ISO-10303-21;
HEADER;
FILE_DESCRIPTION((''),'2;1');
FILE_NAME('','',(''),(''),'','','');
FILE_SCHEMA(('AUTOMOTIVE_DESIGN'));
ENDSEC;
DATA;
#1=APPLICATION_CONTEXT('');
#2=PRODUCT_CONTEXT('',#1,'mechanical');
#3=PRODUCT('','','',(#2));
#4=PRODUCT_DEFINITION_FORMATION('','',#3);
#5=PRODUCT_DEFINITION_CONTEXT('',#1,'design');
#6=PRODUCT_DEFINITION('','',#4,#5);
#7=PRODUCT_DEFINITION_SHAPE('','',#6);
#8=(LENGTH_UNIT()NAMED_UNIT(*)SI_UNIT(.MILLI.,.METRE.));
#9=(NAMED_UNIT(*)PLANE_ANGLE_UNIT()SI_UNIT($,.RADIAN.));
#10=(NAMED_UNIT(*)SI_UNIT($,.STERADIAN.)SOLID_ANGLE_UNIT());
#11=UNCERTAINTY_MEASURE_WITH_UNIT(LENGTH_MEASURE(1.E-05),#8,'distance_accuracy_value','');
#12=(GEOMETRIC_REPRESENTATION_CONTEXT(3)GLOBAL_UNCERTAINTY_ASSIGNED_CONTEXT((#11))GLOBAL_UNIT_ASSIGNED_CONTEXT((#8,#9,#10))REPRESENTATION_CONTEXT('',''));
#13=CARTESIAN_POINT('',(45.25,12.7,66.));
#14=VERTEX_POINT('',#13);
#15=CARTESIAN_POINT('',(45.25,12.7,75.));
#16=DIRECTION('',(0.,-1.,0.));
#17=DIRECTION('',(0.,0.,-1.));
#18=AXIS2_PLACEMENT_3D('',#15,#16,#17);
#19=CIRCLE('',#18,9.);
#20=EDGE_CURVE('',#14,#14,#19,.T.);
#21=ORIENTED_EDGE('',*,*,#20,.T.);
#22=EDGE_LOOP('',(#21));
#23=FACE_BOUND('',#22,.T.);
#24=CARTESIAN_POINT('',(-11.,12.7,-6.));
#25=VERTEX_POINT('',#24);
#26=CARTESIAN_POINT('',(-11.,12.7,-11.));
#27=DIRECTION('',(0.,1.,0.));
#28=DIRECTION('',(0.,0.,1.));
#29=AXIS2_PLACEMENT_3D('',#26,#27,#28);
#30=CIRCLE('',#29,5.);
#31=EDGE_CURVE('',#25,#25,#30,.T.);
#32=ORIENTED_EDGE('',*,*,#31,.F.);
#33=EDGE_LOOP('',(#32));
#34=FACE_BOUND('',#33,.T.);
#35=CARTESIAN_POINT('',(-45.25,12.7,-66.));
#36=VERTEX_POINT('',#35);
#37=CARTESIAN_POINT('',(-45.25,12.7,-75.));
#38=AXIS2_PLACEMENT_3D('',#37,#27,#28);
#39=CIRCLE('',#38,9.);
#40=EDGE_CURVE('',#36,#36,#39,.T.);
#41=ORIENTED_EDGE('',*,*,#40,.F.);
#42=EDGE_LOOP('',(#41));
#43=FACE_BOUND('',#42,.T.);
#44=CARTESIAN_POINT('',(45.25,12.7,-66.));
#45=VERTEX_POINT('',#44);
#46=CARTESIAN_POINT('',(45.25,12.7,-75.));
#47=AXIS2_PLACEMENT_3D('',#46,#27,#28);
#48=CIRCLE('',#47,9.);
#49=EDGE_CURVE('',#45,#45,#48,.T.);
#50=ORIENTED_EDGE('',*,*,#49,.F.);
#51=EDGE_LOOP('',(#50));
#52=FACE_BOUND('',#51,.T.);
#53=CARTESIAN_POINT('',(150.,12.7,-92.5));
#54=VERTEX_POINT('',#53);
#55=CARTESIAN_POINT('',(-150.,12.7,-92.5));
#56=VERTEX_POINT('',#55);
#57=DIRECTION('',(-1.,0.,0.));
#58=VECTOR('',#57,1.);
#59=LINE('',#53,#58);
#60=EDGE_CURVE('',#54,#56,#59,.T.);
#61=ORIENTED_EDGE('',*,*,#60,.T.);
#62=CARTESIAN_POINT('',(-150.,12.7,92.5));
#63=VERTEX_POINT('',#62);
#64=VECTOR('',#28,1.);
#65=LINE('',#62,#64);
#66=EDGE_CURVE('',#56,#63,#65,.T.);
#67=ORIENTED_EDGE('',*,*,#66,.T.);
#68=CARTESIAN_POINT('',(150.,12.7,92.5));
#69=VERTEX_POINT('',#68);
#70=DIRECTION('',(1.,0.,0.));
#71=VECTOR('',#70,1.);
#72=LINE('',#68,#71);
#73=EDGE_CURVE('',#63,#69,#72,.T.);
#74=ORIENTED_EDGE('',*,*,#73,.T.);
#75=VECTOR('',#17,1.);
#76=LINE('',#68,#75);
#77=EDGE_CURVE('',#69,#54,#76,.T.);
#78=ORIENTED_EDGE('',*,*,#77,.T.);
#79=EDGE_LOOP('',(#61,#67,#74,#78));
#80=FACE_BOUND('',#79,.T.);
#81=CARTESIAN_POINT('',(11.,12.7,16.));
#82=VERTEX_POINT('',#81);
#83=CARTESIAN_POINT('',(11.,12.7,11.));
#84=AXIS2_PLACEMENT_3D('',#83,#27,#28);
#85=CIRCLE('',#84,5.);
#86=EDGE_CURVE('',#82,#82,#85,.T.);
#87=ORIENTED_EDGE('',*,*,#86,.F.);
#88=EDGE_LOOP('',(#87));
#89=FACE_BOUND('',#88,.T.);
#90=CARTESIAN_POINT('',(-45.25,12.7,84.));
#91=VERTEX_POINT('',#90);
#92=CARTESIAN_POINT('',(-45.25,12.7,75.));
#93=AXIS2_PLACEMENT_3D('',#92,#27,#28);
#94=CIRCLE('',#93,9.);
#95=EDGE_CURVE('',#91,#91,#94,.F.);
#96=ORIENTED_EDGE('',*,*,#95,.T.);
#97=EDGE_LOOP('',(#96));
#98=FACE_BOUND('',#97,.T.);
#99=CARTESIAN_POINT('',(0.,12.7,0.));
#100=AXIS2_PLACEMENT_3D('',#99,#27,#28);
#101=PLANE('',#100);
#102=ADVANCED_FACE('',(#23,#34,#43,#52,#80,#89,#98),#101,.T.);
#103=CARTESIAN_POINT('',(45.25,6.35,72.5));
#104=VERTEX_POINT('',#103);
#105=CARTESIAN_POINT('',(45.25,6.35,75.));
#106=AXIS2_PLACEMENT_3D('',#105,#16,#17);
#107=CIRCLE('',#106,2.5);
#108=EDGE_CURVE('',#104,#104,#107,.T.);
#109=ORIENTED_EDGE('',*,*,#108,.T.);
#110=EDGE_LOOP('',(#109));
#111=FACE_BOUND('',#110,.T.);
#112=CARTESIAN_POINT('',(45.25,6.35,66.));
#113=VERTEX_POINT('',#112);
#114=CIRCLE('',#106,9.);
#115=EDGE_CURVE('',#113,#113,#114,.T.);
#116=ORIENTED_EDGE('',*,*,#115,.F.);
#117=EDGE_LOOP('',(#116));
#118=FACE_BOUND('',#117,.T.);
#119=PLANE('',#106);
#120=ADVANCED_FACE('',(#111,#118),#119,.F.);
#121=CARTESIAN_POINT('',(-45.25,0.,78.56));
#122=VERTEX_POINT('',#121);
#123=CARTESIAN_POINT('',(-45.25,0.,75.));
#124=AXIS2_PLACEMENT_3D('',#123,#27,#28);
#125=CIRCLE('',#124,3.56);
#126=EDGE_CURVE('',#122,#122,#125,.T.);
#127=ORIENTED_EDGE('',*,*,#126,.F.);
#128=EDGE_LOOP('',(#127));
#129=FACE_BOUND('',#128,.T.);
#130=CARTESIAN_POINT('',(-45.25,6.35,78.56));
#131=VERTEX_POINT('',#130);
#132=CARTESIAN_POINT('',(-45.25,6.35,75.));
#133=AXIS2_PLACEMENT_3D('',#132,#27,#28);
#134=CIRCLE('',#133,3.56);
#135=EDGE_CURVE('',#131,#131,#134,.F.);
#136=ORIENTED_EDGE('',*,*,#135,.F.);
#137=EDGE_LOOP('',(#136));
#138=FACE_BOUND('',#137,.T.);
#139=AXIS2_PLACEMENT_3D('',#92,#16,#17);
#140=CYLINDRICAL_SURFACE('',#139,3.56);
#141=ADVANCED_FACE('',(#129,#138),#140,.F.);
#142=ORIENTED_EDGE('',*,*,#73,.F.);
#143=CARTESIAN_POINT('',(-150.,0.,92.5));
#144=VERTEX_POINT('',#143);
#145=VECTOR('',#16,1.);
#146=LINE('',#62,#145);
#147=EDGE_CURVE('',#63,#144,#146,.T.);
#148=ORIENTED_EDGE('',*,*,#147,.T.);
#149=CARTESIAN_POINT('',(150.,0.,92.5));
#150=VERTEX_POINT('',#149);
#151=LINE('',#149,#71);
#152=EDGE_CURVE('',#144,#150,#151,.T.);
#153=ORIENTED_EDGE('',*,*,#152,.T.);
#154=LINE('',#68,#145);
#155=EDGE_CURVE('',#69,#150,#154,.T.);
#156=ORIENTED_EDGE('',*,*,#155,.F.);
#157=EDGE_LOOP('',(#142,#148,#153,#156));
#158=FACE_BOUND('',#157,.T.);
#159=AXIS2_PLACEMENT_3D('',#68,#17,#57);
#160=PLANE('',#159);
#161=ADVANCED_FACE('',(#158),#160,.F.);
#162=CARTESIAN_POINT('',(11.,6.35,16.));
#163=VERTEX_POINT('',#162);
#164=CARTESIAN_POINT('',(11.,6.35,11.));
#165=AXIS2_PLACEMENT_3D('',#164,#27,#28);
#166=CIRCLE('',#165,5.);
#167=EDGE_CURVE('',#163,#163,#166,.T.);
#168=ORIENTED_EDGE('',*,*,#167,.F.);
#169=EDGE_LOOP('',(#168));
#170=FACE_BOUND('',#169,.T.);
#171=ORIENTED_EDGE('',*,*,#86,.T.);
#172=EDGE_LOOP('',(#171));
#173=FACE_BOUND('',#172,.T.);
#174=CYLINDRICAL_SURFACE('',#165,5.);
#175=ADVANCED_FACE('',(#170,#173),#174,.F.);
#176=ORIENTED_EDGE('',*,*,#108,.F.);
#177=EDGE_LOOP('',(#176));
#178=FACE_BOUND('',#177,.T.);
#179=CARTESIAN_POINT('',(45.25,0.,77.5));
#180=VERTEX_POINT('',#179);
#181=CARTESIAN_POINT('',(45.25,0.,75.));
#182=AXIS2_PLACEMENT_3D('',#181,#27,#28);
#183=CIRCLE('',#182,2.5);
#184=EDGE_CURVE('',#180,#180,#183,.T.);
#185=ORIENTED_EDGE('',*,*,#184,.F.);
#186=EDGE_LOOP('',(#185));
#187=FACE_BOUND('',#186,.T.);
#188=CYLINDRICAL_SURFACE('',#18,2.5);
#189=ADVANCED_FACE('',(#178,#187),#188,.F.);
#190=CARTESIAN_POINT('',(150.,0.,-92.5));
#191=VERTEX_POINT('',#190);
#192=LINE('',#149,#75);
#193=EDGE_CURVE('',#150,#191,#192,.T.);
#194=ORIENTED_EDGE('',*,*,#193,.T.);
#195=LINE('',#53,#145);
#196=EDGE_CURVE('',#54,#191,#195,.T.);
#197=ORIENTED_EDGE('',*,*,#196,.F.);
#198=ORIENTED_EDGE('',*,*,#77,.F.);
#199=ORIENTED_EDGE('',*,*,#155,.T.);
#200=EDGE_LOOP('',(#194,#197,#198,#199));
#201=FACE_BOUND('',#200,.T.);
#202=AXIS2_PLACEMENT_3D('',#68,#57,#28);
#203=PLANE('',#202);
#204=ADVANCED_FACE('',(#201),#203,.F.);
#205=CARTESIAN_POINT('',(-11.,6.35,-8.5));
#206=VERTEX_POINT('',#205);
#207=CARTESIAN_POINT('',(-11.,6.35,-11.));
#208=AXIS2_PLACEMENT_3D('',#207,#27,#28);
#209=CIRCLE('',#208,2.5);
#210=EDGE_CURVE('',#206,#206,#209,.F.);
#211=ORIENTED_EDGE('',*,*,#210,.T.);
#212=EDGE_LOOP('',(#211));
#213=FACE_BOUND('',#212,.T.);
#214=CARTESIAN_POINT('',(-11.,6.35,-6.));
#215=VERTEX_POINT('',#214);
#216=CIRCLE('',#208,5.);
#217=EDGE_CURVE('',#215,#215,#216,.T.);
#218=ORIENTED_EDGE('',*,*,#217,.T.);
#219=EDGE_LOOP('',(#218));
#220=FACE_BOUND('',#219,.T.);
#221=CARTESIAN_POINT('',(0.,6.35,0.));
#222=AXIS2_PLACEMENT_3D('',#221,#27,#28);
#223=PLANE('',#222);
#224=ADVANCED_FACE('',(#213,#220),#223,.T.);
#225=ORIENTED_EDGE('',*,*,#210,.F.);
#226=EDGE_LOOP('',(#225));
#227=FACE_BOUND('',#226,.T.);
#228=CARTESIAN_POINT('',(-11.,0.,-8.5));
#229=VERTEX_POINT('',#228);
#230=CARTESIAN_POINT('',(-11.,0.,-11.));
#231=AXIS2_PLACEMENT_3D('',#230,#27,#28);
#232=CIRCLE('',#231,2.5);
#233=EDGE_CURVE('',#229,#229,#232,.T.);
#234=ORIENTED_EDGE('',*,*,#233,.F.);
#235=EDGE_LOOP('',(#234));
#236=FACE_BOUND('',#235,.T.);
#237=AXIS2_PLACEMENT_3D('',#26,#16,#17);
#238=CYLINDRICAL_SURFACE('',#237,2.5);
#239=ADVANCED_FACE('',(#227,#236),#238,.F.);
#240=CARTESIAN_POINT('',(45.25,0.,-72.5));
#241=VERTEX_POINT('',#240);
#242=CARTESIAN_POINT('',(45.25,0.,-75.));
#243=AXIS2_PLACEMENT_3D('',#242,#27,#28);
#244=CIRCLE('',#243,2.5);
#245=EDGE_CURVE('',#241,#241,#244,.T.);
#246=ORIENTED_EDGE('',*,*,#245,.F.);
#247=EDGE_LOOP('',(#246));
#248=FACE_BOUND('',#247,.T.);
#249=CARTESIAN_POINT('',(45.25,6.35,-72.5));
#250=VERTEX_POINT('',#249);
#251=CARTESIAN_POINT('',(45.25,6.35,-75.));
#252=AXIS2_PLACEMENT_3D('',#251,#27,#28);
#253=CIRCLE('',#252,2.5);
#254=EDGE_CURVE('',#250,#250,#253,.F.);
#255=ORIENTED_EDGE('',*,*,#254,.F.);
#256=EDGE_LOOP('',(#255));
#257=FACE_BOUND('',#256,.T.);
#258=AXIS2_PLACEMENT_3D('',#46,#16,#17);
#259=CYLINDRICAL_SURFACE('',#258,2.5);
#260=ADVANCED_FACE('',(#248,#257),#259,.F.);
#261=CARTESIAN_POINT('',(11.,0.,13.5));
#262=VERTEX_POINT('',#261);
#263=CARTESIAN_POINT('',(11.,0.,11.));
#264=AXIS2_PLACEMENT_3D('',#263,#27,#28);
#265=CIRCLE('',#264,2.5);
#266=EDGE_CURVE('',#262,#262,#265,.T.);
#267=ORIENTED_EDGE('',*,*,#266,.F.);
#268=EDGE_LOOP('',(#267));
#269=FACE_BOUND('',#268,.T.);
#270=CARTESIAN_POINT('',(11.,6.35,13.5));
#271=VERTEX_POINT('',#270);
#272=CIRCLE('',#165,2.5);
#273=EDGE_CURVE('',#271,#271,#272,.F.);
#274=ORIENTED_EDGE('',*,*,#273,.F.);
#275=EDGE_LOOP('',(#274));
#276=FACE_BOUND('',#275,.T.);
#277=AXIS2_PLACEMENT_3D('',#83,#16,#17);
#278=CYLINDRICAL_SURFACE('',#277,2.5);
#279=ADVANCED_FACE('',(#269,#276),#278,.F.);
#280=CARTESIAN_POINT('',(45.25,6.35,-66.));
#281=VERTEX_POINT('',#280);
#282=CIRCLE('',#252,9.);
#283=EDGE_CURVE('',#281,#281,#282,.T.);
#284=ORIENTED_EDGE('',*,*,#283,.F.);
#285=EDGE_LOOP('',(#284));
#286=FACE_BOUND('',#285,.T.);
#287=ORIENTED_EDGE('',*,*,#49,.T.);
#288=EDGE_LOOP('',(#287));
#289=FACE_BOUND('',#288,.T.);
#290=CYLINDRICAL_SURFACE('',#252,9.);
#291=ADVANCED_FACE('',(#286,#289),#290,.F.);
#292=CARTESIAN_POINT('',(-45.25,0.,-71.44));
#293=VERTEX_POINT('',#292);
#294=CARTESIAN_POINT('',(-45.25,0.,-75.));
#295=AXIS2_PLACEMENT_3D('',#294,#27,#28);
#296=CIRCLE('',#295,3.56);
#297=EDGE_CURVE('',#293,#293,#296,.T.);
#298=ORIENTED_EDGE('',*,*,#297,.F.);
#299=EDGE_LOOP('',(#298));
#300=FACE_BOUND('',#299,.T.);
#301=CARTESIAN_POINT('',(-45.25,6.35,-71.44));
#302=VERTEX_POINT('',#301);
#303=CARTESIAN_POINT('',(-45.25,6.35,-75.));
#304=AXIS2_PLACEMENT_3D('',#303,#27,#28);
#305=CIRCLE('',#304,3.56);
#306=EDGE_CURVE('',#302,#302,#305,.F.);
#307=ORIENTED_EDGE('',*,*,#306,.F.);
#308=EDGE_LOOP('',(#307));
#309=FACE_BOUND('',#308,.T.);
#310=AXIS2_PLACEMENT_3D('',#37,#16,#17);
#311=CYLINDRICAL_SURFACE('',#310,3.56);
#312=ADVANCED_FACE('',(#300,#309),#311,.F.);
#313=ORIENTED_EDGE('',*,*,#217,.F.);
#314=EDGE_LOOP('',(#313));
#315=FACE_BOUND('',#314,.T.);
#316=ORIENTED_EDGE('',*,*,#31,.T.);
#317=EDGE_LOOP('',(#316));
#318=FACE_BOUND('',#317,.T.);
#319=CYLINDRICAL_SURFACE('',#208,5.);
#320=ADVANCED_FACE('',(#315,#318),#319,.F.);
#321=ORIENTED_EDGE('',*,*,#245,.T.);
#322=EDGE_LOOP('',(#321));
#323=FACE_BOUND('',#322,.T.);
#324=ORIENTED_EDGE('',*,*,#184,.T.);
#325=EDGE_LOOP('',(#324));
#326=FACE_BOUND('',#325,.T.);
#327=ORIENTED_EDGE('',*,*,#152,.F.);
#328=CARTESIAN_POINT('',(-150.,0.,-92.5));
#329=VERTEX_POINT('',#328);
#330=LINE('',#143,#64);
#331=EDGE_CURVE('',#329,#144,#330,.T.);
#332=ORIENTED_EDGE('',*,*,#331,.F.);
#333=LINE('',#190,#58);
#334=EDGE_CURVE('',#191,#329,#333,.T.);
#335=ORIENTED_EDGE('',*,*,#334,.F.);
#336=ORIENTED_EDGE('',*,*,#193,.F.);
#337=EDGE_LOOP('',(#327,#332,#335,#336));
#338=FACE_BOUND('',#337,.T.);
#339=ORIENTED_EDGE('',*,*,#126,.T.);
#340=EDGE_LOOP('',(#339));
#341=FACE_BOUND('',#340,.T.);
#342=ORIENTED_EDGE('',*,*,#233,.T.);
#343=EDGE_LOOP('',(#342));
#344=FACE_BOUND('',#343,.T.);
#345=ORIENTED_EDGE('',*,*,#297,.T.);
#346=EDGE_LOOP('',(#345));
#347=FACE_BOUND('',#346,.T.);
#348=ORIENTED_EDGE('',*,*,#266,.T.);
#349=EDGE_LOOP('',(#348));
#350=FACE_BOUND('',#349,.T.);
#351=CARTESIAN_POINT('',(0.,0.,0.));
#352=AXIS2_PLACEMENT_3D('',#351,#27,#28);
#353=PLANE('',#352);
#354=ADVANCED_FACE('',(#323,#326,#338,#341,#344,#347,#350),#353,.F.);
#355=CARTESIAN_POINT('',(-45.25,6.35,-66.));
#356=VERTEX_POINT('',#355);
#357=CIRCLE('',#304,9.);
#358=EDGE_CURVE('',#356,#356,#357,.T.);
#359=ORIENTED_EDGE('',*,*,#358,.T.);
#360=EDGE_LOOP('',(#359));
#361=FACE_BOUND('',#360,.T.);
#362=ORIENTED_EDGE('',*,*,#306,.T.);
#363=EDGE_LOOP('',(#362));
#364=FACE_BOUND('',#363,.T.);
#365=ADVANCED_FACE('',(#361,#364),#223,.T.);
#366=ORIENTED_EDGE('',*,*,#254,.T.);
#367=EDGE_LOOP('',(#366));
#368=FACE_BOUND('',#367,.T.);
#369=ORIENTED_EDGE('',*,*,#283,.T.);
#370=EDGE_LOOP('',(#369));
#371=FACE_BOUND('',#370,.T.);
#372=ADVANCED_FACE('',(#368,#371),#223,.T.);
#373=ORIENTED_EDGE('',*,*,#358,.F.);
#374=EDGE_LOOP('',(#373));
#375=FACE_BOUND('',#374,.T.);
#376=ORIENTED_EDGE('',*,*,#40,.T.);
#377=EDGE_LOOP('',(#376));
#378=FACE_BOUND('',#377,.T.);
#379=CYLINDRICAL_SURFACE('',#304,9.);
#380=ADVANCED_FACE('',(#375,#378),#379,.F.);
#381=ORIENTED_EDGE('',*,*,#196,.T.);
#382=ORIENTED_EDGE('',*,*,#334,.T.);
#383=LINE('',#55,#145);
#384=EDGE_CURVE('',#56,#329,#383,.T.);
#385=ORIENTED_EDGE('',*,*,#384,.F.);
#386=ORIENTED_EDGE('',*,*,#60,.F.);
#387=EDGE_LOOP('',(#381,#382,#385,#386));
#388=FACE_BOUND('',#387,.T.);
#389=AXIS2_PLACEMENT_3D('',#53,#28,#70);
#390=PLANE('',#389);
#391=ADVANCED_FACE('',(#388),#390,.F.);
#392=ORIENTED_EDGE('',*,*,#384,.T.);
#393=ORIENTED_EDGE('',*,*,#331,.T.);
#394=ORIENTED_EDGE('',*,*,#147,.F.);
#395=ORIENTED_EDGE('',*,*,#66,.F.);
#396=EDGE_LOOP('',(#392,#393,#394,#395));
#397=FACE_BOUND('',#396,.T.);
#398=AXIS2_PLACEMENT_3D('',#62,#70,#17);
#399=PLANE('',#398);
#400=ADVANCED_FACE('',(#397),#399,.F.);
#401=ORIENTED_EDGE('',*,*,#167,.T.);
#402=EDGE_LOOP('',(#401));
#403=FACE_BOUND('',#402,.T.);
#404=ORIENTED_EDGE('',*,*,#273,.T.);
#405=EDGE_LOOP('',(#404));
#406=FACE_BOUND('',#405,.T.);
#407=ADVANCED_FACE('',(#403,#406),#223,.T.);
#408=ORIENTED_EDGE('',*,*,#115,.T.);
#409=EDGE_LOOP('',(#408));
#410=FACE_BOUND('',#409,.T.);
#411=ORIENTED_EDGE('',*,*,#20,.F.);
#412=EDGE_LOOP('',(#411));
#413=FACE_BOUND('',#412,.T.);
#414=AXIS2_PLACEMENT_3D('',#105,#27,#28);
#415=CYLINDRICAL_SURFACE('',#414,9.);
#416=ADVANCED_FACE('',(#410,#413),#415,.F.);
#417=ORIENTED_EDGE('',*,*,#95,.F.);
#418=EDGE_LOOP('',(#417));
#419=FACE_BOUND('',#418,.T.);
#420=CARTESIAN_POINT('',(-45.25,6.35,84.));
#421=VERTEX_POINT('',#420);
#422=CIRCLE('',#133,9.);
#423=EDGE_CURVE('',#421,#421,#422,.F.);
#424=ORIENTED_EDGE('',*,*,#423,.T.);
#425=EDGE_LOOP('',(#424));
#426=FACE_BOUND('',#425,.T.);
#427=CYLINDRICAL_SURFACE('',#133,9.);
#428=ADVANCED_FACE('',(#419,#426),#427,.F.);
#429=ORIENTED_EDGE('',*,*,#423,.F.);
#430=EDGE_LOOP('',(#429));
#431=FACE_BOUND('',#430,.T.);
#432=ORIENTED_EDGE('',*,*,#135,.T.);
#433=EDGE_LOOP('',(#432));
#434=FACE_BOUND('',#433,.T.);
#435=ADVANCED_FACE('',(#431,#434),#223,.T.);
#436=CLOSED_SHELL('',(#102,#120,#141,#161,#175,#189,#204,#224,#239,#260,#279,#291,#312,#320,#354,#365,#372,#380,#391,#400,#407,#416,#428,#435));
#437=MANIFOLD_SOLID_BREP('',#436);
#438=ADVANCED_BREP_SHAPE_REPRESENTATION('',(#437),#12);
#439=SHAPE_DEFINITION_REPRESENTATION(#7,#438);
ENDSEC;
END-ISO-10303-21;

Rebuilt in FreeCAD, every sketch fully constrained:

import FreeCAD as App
import Part
import Sketcher

V = App.Vector
Q = App.Units.Quantity

doc = App.newDocument("Part")
body = doc.addObject("PartDesign::Body", "Body")

# Sketch on XZ plane
sketch1 = doc.addObject("Sketcher::SketchObject", "Sketch")
body.addObject(sketch1)
sketch1.AttachmentSupport = (doc.XZ_Plane, [""])
sketch1.MapMode = "FlatFace"
sketch1.addGeometry(Part.LineSegment(V(-150, -92.5, 0), V(-150, 92.5, 0)), False)
sketch1.addGeometry(Part.LineSegment(V(-150, 92.5, 0), V(150, 92.5, 0)), False)
sketch1.addGeometry(Part.LineSegment(V(150, 92.5, 0), V(150, -92.5, 0)), False)
sketch1.addGeometry(Part.LineSegment(V(150, -92.5, 0), V(-150, -92.5, 0)), False)
sketch1.addGeometry(Part.Circle(V(-45.2, 75, 0), V(0, 0, 1), 3.6), False)
sketch1.addGeometry(Part.Circle(V(45.2, 75, 0), V(0, 0, 1), 2.5), False)
sketch1.addGeometry(Part.Circle(V(11, 11, 0), V(0, 0, 1), 2.5), False)
sketch1.addGeometry(Part.Circle(V(-11, -11, 0), V(0, 0, 1), 2.5), False)
sketch1.addGeometry(Part.Circle(V(-45.2, -75, 0), V(0, 0, 1), 3.6), False)
sketch1.addGeometry(Part.Circle(V(45.2, -75, 0), V(0, 0, 1), 2.5), False)
sketch1.addConstraint(Sketcher.Constraint("Coincident", 0, 2, 1, 1))
sketch1.addConstraint(Sketcher.Constraint("Coincident", 1, 2, 2, 1))
sketch1.addConstraint(Sketcher.Constraint("Coincident", 2, 2, 3, 1))
sketch1.addConstraint(Sketcher.Constraint("Coincident", 3, 2, 0, 1))
sketch1.addConstraint(Sketcher.Constraint("Vertical", 0))
sketch1.addConstraint(Sketcher.Constraint("Horizontal", 1))
sketch1.addConstraint(Sketcher.Constraint("Vertical", 2))
sketch1.addConstraint(Sketcher.Constraint("Horizontal", 3))
sketch1.addConstraint(Sketcher.Constraint("Equal", 5, 6))
sketch1.addConstraint(Sketcher.Constraint("Equal", 6, 7))
sketch1.addConstraint(Sketcher.Constraint("Equal", 4, 8))
sketch1.addConstraint(Sketcher.Constraint("Equal", 7, 9))
sketch1.addConstraint(Sketcher.Constraint("Symmetric", 6, 3, 7, 3, -1, 1))
sketch1.addConstraint(Sketcher.Constraint("Symmetric", 5, 3, 8, 3, -1, 1))
sketch1.addConstraint(Sketcher.Constraint("Symmetric", 4, 3, 9, 3, -1, 1))
sketch1.addConstraint(Sketcher.Constraint("Symmetric", 0, 2, 2, 2, -1, 1))
sketch1.addConstraint(Sketcher.Constraint("Symmetric", 4, 3, 5, 3, -2))
sketch1.addConstraint(Sketcher.Constraint("Diameter", 5, Q("5 mm")))
sketch1.addConstraint(Sketcher.Constraint("Diameter", 4, Q("7.12 mm")))
sketch1.addConstraint(Sketcher.Constraint("DistanceX", 1, 1, 1, 2, Q("300 mm")))
sketch1.addConstraint(Sketcher.Constraint("DistanceY", 0, 1, 0, 2, Q("185 mm")))
sketch1.addConstraint(Sketcher.Constraint("DistanceY", -1, 1, 4, 3, Q("75 mm")))
sketch1.addConstraint(Sketcher.Constraint("DistanceX", -1, 1, 6, 3, Q("11 mm")))
sketch1.addConstraint(Sketcher.Constraint("DistanceY", -1, 1, 6, 3, Q("11 mm")))
sketch1.addConstraint(Sketcher.Constraint("DistanceX", 4, 3, 5, 3, Q("90.5 mm")))
pad1 = doc.addObject("PartDesign::Pad", "Pad")
body.addObject(pad1)
pad1.Profile = sketch1
pad1.Length = 12.7
pad1.Reversed = True

# Sketch on XZ plane
sketch2 = doc.addObject("Sketcher::SketchObject", "Sketch001")
body.addObject(sketch2)
sketch2.AttachmentSupport = (doc.XZ_Plane, [""])
sketch2.MapMode = "FlatFace"
sketch2.AttachmentOffset = App.Placement(V(0, 0, -6.35), App.Rotation())
sketch2.addGeometry(Part.Circle(V(-45.2, -75, 0), V(0, 0, 1), 9), False)
sketch2.addGeometry(Part.Circle(V(-45.2, -75, 0), V(0, 0, 1), 3.6), False)
sketch2.addGeometry(Part.Circle(V(45.2, -75, 0), V(0, 0, 1), 9), False)
sketch2.addGeometry(Part.Circle(V(45.2, -75, 0), V(0, 0, 1), 2.5), False)
sketch2.addGeometry(Part.Circle(V(45.2, 75, 0), V(0, 0, 1), 9), False)
sketch2.addGeometry(Part.Circle(V(45.2, 75, 0), V(0, 0, 1), 2.5), False)
sketch2.addGeometry(Part.Circle(V(-45.2, 75, 0), V(0, 0, 1), 9), False)
sketch2.addGeometry(Part.Circle(V(-45.2, 75, 0), V(0, 0, 1), 3.6), False)
sketch2.addGeometry(Part.Circle(V(-11, -11, 0), V(0, 0, 1), 5), False)
sketch2.addGeometry(Part.Circle(V(-11, -11, 0), V(0, 0, 1), 2.5), False)
sketch2.addGeometry(Part.Circle(V(11, 11, 0), V(0, 0, 1), 5), False)
sketch2.addGeometry(Part.Circle(V(11, 11, 0), V(0, 0, 1), 2.5), False)
sketch2.addConstraint(Sketcher.Constraint("Coincident", 1, 3, 0, 3))
sketch2.addConstraint(Sketcher.Constraint("Coincident", 3, 3, 2, 3))
sketch2.addConstraint(Sketcher.Constraint("Coincident", 5, 3, 4, 3))
sketch2.addConstraint(Sketcher.Constraint("Coincident", 7, 3, 6, 3))
sketch2.addConstraint(Sketcher.Constraint("Coincident", 9, 3, 8, 3))
sketch2.addConstraint(Sketcher.Constraint("Coincident", 11, 3, 10, 3))
sketch2.addConstraint(Sketcher.Constraint("Equal", 0, 2))
sketch2.addConstraint(Sketcher.Constraint("Equal", 2, 4))
sketch2.addConstraint(Sketcher.Constraint("Equal", 3, 5))
sketch2.addConstraint(Sketcher.Constraint("Equal", 4, 6))
sketch2.addConstraint(Sketcher.Constraint("Equal", 1, 7))
sketch2.addConstraint(Sketcher.Constraint("Equal", 5, 9))
sketch2.addConstraint(Sketcher.Constraint("Equal", 8, 10))
sketch2.addConstraint(Sketcher.Constraint("Equal", 9, 11))
sketch2.addConstraint(Sketcher.Constraint("Symmetric", 0, 3, 4, 3, -1, 1))
sketch2.addConstraint(Sketcher.Constraint("Symmetric", 2, 3, 6, 3, -1, 1))
sketch2.addConstraint(Sketcher.Constraint("Symmetric", 8, 3, 10, 3, -1, 1))
sketch2.addConstraint(Sketcher.Constraint("Symmetric", 0, 3, 2, 3, -2))
sketch2.addConstraint(Sketcher.Constraint("Diameter", 0, Q("18 mm")))
sketch2.addConstraint(Sketcher.Constraint("Diameter", 3, Q("5 mm")))
sketch2.addConstraint(Sketcher.Constraint("Diameter", 8, Q("10 mm")))
sketch2.addConstraint(Sketcher.Constraint("Diameter", 1, Q("7.12 mm")))
sketch2.addConstraint(Sketcher.Constraint("DistanceY", 0, 3, -1, 1, Q("75 mm")))
sketch2.addConstraint(Sketcher.Constraint("DistanceX", 8, 3, -1, 1, Q("11 mm")))
sketch2.addConstraint(Sketcher.Constraint("DistanceY", 8, 3, -1, 1, Q("11 mm")))
sketch2.addConstraint(Sketcher.Constraint("DistanceX", 0, 3, 2, 3, Q("90.5 mm")))
pocket1 = doc.addObject("PartDesign::Pocket", "Pocket")
body.addObject(pocket1)
pocket1.Profile = sketch2
pocket1.Length = 6.35

doc.recompute()
